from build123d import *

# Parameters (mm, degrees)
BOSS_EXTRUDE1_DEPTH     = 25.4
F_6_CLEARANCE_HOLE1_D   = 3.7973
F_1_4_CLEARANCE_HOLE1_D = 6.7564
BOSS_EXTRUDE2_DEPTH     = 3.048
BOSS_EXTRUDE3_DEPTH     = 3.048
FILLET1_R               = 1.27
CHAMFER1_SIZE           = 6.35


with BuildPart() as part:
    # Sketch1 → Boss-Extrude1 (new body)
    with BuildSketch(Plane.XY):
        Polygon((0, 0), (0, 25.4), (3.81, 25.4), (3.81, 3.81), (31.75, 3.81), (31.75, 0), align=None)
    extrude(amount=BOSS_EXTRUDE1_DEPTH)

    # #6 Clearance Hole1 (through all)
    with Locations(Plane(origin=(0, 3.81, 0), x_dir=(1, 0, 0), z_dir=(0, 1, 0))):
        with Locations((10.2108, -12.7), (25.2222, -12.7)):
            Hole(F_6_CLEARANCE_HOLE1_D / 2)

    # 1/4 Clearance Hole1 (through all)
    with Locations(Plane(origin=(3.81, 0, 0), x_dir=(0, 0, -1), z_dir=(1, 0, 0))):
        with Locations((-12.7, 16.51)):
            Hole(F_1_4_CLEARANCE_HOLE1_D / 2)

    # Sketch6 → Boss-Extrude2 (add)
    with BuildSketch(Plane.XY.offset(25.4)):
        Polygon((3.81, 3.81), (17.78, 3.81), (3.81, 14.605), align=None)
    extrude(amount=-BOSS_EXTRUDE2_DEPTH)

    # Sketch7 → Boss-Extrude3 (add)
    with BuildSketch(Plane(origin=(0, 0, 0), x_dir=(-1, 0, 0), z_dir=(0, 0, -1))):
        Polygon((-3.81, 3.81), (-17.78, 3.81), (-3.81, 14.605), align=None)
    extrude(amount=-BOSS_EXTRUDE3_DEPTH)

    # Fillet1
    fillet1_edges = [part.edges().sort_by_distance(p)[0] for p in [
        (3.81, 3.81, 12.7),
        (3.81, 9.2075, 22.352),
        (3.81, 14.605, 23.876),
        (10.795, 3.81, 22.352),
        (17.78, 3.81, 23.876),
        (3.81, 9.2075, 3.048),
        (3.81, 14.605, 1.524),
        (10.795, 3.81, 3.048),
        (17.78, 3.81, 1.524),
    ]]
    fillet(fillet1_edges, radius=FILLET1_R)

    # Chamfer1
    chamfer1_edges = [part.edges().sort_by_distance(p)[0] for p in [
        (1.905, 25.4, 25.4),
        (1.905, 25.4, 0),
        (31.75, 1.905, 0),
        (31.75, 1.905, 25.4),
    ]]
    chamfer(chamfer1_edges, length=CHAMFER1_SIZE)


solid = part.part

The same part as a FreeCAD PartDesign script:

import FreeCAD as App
import Part
import Sketcher
Q = App.Units.Quantity


def edges_at(feature, points):
    """Names of the edges that pass closest to the given points."""
    edges = feature.Shape.Edges
    near = lambda p: min(range(len(edges)), key=lambda i: edges[i].distToShape(Part.Vertex(*p))[0])
    return sorted({f"Edge{near(p) + 1}" for p in points})

doc = App.newDocument("Part")
body = doc.addObject("PartDesign::Body", "Body")

# Sketch on XY plane
sketch1 = doc.addObject("Sketcher::SketchObject", "Sketch")
body.addObject(sketch1)
sketch1.AttachmentSupport = (doc.XY_Plane, [""])
sketch1.MapMode = "FlatFace"
sketch1.addGeometry(Part.LineSegment(App.Vector(0, 25.4, 0), App.Vector(0, 0, 0)), False)
sketch1.addGeometry(Part.LineSegment(App.Vector(0, 0, 0), App.Vector(31.8, 0, 0)), False)
sketch1.addGeometry(Part.LineSegment(App.Vector(31.8, 0, 0), App.Vector(31.8, 3.8, 0)), False)
sketch1.addGeometry(Part.LineSegment(App.Vector(31.8, 3.8, 0), App.Vector(3.8, 3.8, 0)), False)
sketch1.addGeometry(Part.LineSegment(App.Vector(3.8, 3.8, 0), App.Vector(3.8, 25.4, 0)), False)
sketch1.addGeometry(Part.LineSegment(App.Vector(3.8, 25.4, 0), App.Vector(0, 25.4, 0)), False)
sketch1.addConstraint(Sketcher.Constraint("Coincident", 0, 2, 1, 1))
sketch1.addConstraint(Sketcher.Constraint("Coincident", 1, 2, 2, 1))
sketch1.addConstraint(Sketcher.Constraint("Coincident", 2, 2, 3, 1))
sketch1.addConstraint(Sketcher.Constraint("Coincident", 3, 2, 4, 1))
sketch1.addConstraint(Sketcher.Constraint("Coincident", 4, 2, 5, 1))
sketch1.addConstraint(Sketcher.Constraint("Coincident", 5, 2, 0, 1))
sketch1.addConstraint(Sketcher.Constraint("Vertical", 0))
sketch1.addConstraint(Sketcher.Constraint("Horizontal", 1))
sketch1.addConstraint(Sketcher.Constraint("Vertical", 2))
sketch1.addConstraint(Sketcher.Constraint("Horizontal", 3))
sketch1.addConstraint(Sketcher.Constraint("Vertical", 4))
sketch1.addConstraint(Sketcher.Constraint("Horizontal", 5))
sketch1.addConstraint(Sketcher.Constraint("Coincident", 0, 2, -1, 1))
sketch1.addConstraint(Sketcher.Constraint("Equal", 5, 2))
sketch1.addConstraint(Sketcher.Constraint("DistanceY", 0, 2, 0, 1, Q("1 in")))
sketch1.addConstraint(Sketcher.Constraint("DistanceX", 3, 2, 3, 1, Q("1.1 in")))
sketch1.addConstraint(Sketcher.Constraint("DistanceX", 1, 1, 1, 2, Q("1.25 in")))
pad1 = doc.addObject("PartDesign::Pad", "Pad")
body.addObject(pad1)
pad1.Profile = sketch1
pad1.Length = Q("1 in")

# Sketch on XZ plane
sketch2 = doc.addObject("Sketcher::SketchObject", "Sketch001")
body.addObject(sketch2)
sketch2.AttachmentSupport = (doc.XZ_Plane, [""])
sketch2.MapMode = "FlatFace"
sketch2.AttachmentOffset = App.Placement(App.Vector(0, 0, -0.15 * 25.4), App.Rotation())
sketch2.addGeometry(Part.Circle(App.Vector(10.2, 12.7, 0), App.Vector(0, 0, 1), 1.9), False)
sketch2.addGeometry(Part.Circle(App.Vector(25.2, 12.7, 0), App.Vector(0, 0, 1), 1.9), False)
sketch2.addConstraint(Sketcher.Constraint("Equal", 0, 1))
sketch2.addConstraint(Sketcher.Constraint("Horizontal", 0, 3, 1, 3))
sketch2.addConstraint(Sketcher.Constraint("Diameter", 0, Q("0.1495 in")))
sketch2.addConstraint(Sketcher.Constraint("DistanceY", -1, 1, 0, 3, Q("0.5 in")))
sketch2.addConstraint(Sketcher.Constraint("DistanceX", -1, 1, 0, 3, Q("0.402 in")))
sketch2.addConstraint(Sketcher.Constraint("DistanceX", -1, 1, 1, 3, Q("0.993 in")))
doc.recompute()
hole = doc.addObject("PartDesign::Hole", "Hole")
body.addObject(hole)
hole.Profile = sketch2
hole.ThreadType = "None"
hole.Diameter = Q("0.1495 in")
hole.DepthType = "ThroughAll"
hole.Reversed = True

# Sketch on YZ plane
sketch3 = doc.addObject("Sketcher::SketchObject", "Sketch002")
body.addObject(sketch3)
sketch3.AttachmentSupport = (doc.YZ_Plane, [""])
sketch3.MapMode = "FlatFace"
sketch3.AttachmentOffset = App.Placement(App.Vector(0, 0, 0.15 * 25.4), App.Rotation())
sketch3.addGeometry(Part.Circle(App.Vector(16.5, 12.7, 0), App.Vector(0, 0, 1), 3.4), False)
sketch3.addConstraint(Sketcher.Constraint("Diameter", 0, Q("0.266 in")))
sketch3.addConstraint(Sketcher.Constraint("DistanceY", -1, 1, 0, 3, Q("0.5 in")))
sketch3.addConstraint(Sketcher.Constraint("DistanceX", -1, 1, 0, 3, Q("0.65 in")))
doc.recompute()
hole2 = doc.addObject("PartDesign::Hole", "Hole001")
body.addObject(hole2)
hole2.Profile = sketch3
hole2.ThreadType = "None"
hole2.Diameter = Q("0.266 in")
hole2.DepthType = "ThroughAll"

# Sketch on XY plane
sketch4 = doc.addObject("Sketcher::SketchObject", "Sketch003")
body.addObject(sketch4)
sketch4.AttachmentSupport = (doc.XY_Plane, [""])
sketch4.MapMode = "FlatFace"
sketch4.AttachmentOffset = App.Placement(App.Vector(0, 0, 1 * 25.4), App.Rotation())
sketch4.addGeometry(Part.LineSegment(App.Vector(4, 4, 0), App.Vector(18, 4, 0)), False)
sketch4.addGeometry(Part.LineSegment(App.Vector(18, 4, 0), App.Vector(4, 15, 0)), False)
sketch4.addGeometry(Part.LineSegment(App.Vector(4, 15, 0), App.Vector(4, 4, 0)), False)
sketch4.addConstraint(Sketcher.Constraint("Coincident", 0, 2, 1, 1))
sketch4.addConstraint(Sketcher.Constraint("Coincident", 1, 2, 2, 1))
sketch4.addConstraint(Sketcher.Constraint("Coincident", 2, 2, 0, 1))
sketch4.addConstraint(Sketcher.Constraint("Horizontal", 0))
sketch4.addConstraint(Sketcher.Constraint("Vertical", 2))
sketch4.addConstraint(Sketcher.Constraint("DistanceX", 0, 1, 0, 2, Q("0.55 in")))
sketch4.addConstraint(Sketcher.Constraint("DistanceX", -1, 1, 0, 2, Q("0.7 in")))
sketch4.addConstraint(Sketcher.Constraint("DistanceY", 2, 2, 2, 1, Q("0.425 in")))
sketch4.addConstraint(Sketcher.Constraint("DistanceY", -1, 1, 0, 2, Q("0.15 in")))
pad2 = doc.addObject("PartDesign::Pad", "Pad001")
body.addObject(pad2)
pad2.Profile = sketch4
pad2.Length = Q("0.12 in")
pad2.Reversed = True

# Sketch on XY plane
sketch5 = doc.addObject("Sketcher::SketchObject", "Sketch004")
body.addObject(sketch5)
sketch5.AttachmentSupport = (doc.XY_Plane, [""])
sketch5.MapMode = "FlatFace"
sketch5.addGeometry(Part.LineSegment(App.Vector(18, 4, 0), App.Vector(4, 4, 0)), False)
sketch5.addGeometry(Part.LineSegment(App.Vector(4, 4, 0), App.Vector(4, 15, 0)), False)
sketch5.addGeometry(Part.LineSegment(App.Vector(4, 15, 0), App.Vector(18, 4, 0)), False)
sketch5.addConstraint(Sketcher.Constraint("Coincident", 0, 2, 1, 1))
sketch5.addConstraint(Sketcher.Constraint("Coincident", 1, 2, 2, 1))
sketch5.addConstraint(Sketcher.Constraint("Coincident", 2, 2, 0, 1))
sketch5.addConstraint(Sketcher.Constraint("Horizontal", 0))
sketch5.addConstraint(Sketcher.Constraint("Vertical", 1))
sketch5.addConstraint(Sketcher.Constraint("DistanceX", 0, 2, 0, 1, Q("0.55 in")))
sketch5.addConstraint(Sketcher.Constraint("DistanceX", -1, 1, 2, 2, Q("0.7 in")))
sketch5.addConstraint(Sketcher.Constraint("DistanceY", 1, 1, 1, 2, Q("0.425 in")))
sketch5.addConstraint(Sketcher.Constraint("DistanceY", -1, 1, 0, 2, Q("0.15 in")))
pad3 = doc.addObject("PartDesign::Pad", "Pad002")
body.addObject(pad3)
pad3.Profile = sketch5
pad3.Length = Q("0.12 in")
doc.recompute()

fillet = doc.addObject("PartDesign::Fillet", "Fillet")
body.addObject(fillet)
fillet.Base = (pad3, edges_at(pad3, [
    (3.81, 3.81, 12.7),
    (3.81, 9.207, 22.352),
    (3.81, 14.605, 23.876),
    (10.795, 3.81, 22.352),
    (17.78, 3.81, 23.876),
    (3.81, 9.207, 3.048),
    (3.81, 14.605, 1.524),
    (10.795, 3.81, 3.048),
    (17.78, 3.81, 1.524),
]))
fillet.Radius = Q("0.05 in")
doc.recompute()

chamfer = doc.addObject("PartDesign::Chamfer", "Chamfer")
body.addObject(chamfer)
chamfer.Base = (fillet, edges_at(fillet, [
    (1.905, 25.4, 25.4),
    (1.905, 25.4, 0),
    (31.75, 1.905, 0),
    (31.75, 1.905, 25.4),
]))
chamfer.Size = Q("0.25 in")

doc.recompute()
